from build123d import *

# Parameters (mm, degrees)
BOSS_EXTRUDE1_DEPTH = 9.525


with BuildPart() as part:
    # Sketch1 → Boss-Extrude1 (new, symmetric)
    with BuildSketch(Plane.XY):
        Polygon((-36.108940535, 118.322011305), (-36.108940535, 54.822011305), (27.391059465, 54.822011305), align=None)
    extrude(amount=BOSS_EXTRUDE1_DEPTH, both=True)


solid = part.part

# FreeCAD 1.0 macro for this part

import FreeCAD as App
import Part
import Sketcher
Q = App.Units.Quantity


def add_polygon(sketch, points):
    """Adds a closed chain of lines whose ends are joined by coincident constraints."""
    first, n = sketch.GeometryCount, len(points)
    for a, b in zip(points, points[1:] + points[:1]):
        sketch.addGeometry(Part.LineSegment(App.Vector(*a, 0), App.Vector(*b, 0)), False)
    for i in range(n):
        sketch.addConstraint(Sketcher.Constraint("Coincident", first + i, 2, first + (i + 1) % n, 1))

doc = App.newDocument("Part")
params = doc.addObject("Spreadsheet::Sheet", "Params")
for row, (alias, value) in enumerate([
    ("sketch1_width", "2.5 in"),
    ("pad1_length", "0.75 in"),
], start=1):
    params.set(f"A{row}", alias)
    params.set(f"B{row}", "=" + value)
    params.setAlias(f"B{row}", alias)

body = doc.addObject("PartDesign::Body", "Body")

sketch1 = body.newObject("Sketcher::SketchObject", "Sketch")
sketch1.AttachmentSupport = (doc.getObject("XY_Plane"), [""])
sketch1.MapMode = "FlatFace"
add_polygon(sketch1, [(-36, 118), (-36, 55), (27, 55)])
sketch1.addConstraint([
    Sketcher.Constraint("Vertical", 0),
    Sketcher.Constraint("Horizontal", 1),
    Sketcher.Constraint("Equal", 1, 0),
    Sketcher.Constraint("DistanceX", 1, 1, 1, 2, Q("2.5 in")),
    Sketcher.Constraint("DistanceX", 0, 2, -1, 1, Q("36.108941 mm")),
    Sketcher.Constraint("DistanceY", -1, 1, 0, 2, Q("54.822011 mm")),
])
sketch1.setExpression("Constraints[6]", "Params.sketch1_width")
pad1 = body.newObject("PartDesign::Pad", "Pad")
pad1.Profile = sketch1
pad1.setExpression("Length", "Params.pad1_length")
pad1.Midplane = True

doc.recompute()
